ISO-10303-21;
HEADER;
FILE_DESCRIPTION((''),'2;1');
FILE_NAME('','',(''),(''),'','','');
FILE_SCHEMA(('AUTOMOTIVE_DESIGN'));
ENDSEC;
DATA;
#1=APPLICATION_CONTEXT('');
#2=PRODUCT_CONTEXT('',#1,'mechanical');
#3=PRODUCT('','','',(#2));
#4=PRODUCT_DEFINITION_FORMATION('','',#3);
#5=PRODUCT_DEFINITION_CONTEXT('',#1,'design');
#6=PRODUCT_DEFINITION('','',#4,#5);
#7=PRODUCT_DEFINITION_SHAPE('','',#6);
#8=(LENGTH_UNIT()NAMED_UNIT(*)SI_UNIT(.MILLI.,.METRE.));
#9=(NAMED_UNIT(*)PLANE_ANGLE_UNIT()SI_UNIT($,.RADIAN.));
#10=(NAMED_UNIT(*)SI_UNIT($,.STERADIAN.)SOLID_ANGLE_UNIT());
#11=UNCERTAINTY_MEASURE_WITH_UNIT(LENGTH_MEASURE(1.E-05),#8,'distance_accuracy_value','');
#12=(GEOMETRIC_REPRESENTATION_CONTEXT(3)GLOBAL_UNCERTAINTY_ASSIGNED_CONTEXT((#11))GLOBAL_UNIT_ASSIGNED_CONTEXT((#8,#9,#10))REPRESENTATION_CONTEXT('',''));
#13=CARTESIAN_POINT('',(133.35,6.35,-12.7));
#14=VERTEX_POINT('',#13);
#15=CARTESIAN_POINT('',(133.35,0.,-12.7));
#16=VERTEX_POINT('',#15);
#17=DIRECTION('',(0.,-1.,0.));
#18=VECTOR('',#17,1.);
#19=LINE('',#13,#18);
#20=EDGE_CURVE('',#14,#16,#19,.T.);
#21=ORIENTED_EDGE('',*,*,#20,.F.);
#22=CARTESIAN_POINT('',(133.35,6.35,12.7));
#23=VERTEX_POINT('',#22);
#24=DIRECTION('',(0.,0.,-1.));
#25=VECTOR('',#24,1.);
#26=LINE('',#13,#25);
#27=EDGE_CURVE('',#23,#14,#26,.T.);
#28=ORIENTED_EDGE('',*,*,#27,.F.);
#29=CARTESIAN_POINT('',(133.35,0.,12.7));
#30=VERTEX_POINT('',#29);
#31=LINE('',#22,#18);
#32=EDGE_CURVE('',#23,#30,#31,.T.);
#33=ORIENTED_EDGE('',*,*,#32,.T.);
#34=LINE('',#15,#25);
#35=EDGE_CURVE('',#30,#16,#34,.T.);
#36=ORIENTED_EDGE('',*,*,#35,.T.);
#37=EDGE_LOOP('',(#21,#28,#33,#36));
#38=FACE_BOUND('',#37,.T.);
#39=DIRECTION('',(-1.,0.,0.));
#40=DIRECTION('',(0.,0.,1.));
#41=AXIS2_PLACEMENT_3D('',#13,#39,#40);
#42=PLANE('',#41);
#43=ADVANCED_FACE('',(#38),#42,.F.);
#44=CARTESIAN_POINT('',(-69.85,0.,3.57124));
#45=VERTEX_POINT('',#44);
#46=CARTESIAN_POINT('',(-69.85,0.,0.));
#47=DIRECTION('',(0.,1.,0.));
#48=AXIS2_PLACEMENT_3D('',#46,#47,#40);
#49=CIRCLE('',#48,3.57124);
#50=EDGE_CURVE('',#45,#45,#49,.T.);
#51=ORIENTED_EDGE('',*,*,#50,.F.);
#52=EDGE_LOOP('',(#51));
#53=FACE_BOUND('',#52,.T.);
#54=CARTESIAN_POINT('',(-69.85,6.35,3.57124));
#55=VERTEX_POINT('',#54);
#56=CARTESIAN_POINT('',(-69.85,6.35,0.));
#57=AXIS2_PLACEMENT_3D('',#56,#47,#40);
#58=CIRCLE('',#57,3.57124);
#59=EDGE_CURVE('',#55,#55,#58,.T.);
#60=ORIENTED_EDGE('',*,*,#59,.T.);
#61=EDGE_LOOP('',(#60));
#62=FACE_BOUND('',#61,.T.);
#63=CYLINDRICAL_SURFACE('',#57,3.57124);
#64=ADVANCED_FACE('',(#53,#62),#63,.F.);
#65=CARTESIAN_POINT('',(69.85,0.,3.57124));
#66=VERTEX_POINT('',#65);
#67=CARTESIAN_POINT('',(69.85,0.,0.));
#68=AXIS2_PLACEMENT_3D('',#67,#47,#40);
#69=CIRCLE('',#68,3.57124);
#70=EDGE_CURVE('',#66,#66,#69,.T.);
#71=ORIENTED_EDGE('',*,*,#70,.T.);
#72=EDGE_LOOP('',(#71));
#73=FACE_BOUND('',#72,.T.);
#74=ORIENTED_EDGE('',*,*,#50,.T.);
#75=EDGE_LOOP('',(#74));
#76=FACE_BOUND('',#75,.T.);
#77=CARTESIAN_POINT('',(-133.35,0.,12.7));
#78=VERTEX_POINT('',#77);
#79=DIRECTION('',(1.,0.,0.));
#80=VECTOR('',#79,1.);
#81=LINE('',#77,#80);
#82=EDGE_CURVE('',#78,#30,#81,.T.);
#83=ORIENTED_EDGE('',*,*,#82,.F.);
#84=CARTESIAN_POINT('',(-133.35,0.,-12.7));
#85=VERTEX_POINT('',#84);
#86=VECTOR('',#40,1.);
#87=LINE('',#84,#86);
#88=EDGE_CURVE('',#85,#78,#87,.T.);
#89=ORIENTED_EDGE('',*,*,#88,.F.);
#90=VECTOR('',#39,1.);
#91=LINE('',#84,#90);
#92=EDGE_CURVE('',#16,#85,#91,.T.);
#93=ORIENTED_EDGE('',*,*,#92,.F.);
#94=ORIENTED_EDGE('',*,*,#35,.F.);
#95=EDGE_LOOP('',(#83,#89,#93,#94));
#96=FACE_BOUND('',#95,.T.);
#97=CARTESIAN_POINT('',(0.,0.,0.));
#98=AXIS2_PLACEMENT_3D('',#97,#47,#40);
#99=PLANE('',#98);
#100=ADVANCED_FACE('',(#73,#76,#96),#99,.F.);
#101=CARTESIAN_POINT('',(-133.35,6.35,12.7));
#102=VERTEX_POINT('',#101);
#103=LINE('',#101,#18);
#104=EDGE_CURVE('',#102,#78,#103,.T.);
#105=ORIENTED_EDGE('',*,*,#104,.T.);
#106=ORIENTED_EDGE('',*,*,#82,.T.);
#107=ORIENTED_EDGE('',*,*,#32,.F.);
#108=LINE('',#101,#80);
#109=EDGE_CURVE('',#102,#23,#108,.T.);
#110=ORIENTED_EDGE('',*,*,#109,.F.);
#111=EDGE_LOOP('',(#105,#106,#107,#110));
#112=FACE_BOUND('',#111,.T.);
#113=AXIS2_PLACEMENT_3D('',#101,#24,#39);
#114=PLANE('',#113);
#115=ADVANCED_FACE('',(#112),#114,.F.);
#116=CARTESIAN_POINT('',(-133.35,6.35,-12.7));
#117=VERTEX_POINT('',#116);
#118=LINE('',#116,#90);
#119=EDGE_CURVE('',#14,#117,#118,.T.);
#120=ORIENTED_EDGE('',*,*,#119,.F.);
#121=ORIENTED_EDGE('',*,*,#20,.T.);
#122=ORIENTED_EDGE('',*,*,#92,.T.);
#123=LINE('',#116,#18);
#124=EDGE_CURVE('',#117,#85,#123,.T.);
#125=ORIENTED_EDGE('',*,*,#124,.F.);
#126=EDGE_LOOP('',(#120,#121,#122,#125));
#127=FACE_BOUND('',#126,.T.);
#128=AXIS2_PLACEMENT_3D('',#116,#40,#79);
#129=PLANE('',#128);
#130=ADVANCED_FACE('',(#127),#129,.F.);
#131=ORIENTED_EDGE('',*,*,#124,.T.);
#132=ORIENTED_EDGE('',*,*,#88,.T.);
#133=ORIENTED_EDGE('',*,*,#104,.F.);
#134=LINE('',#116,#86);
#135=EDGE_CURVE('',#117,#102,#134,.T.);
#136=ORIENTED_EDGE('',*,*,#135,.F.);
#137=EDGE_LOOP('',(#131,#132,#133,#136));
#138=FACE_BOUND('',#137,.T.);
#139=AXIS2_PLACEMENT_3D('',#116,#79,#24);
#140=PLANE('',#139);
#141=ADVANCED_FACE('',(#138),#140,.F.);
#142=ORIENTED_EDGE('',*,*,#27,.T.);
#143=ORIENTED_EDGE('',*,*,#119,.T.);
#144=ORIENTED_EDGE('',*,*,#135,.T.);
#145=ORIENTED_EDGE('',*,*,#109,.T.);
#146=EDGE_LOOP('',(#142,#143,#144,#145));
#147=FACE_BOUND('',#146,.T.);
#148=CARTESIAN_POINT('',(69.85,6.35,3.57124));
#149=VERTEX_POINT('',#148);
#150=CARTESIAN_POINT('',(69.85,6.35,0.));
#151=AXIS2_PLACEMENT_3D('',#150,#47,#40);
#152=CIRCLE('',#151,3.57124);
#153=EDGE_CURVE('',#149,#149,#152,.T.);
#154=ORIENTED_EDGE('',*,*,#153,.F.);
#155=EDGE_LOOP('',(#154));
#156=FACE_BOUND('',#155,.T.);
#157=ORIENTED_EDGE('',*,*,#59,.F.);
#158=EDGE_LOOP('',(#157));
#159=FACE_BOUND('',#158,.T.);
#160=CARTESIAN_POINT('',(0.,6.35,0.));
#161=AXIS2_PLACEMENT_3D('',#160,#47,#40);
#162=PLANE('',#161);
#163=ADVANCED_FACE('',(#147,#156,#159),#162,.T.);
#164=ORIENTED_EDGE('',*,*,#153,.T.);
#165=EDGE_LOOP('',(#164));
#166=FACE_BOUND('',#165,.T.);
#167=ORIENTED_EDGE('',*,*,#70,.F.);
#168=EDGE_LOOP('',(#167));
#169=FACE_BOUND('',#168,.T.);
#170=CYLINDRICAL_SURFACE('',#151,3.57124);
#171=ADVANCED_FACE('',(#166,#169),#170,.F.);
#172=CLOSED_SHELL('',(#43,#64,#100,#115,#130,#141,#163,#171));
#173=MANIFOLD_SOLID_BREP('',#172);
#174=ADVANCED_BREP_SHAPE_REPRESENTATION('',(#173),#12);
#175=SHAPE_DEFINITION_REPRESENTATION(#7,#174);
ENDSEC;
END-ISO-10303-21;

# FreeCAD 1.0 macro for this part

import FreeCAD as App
import Part
import Sketcher
from FreeCAD import Vector
Q = App.Units.Quantity

doc = App.newDocument("Part")
body = doc.addObject("PartDesign::Body", "Body")

# Sketch on XZ plane
sketch1 = doc.addObject("Sketcher::SketchObject", "Sketch")
body.addObject(sketch1)
sketch1.AttachmentSupport = (doc.XZ_Plane, [""])
sketch1.MapMode = "FlatFace"
sketch1.addGeometry(Part.LineSegment(Vector(-133, -13, 0), Vector(-133, 13, 0)), False)
sketch1.addGeometry(Part.LineSegment(Vector(-133, 13, 0), Vector(133, 13, 0)), False)
sketch1.addGeometry(Part.LineSegment(Vector(133, 13, 0), Vector(133, -13, 0)), False)
sketch1.addGeometry(Part.LineSegment(Vector(133, -13, 0), Vector(-133, -13, 0)), False)
sketch1.addConstraint(Sketcher.Constraint("Coincident", 0, 2, 1, 1))
sketch1.addConstraint(Sketcher.Constraint("Coincident", 1, 2, 2, 1))
sketch1.addConstraint(Sketcher.Constraint("Coincident", 2, 2, 3, 1))
sketch1.addConstraint(Sketcher.Constraint("Coincident", 3, 2, 0, 1))
sketch1.addConstraint(Sketcher.Constraint("Vertical", 0))
sketch1.addConstraint(Sketcher.Constraint("Horizontal", 1))
sketch1.addConstraint(Sketcher.Constraint("Vertical", 2))
sketch1.addConstraint(Sketcher.Constraint("Horizontal", 3))
sketch1.addConstraint(Sketcher.Constraint("Symmetric", 0, 2, 2, 2, -1, 1))
sketch1.addConstraint(Sketcher.Constraint("DistanceY", 0, 1, 0, 2, Q("1 in")))
sketch1.addConstraint(Sketcher.Constraint("DistanceX", 1, 1, 1, 2, Q("10.5 in")))
pad1 = doc.addObject("PartDesign::Pad", "Pad")
body.addObject(pad1)
pad1.Profile = sketch1
pad1.Length = Q("0.25 in")
pad1.Reversed = True

# Sketch on XZ plane
sketch2 = doc.addObject("Sketcher::SketchObject", "Sketch001")
body.addObject(sketch2)
sketch2.AttachmentSupport = (doc.XZ_Plane, [""])
sketch2.MapMode = "FlatFace"
sketch2.AttachmentOffset = App.Placement(Vector(0, 0, -0.25 * 25.4), App.Rotation())
sketch2.addGeometry(Part.Circle(Vector(-69.8, 0, 0), Vector(0, 0, 1), 3.6), False)
sketch2.addGeometry(Part.Circle(Vector(69.8, 0, 0), Vector(0, 0, 1), 3.6), False)
sketch2.addConstraint(Sketcher.Constraint("Equal", 0, 1))
sketch2.addConstraint(Sketcher.Constraint("Symmetric", 0, 3, 1, 3, -1, 1))
sketch2.addConstraint(Sketcher.Constraint("PointOnObject", 0, 3, -1))
sketch2.addConstraint(Sketcher.Constraint("Diameter", 0, Q("0.2812 in")))
sketch2.addConstraint(Sketcher.Constraint("DistanceX", 0, 3, 1, 3, Q("5.5 in")))
doc.recompute()
hole = doc.addObject("PartDesign::Hole", "Hole")
body.addObject(hole)
hole.Profile = sketch2
hole.ThreadType = "None"
hole.Diameter = Q("0.2812 in")
hole.DepthType = "ThroughAll"
hole.Reversed = True

doc.recompute()
